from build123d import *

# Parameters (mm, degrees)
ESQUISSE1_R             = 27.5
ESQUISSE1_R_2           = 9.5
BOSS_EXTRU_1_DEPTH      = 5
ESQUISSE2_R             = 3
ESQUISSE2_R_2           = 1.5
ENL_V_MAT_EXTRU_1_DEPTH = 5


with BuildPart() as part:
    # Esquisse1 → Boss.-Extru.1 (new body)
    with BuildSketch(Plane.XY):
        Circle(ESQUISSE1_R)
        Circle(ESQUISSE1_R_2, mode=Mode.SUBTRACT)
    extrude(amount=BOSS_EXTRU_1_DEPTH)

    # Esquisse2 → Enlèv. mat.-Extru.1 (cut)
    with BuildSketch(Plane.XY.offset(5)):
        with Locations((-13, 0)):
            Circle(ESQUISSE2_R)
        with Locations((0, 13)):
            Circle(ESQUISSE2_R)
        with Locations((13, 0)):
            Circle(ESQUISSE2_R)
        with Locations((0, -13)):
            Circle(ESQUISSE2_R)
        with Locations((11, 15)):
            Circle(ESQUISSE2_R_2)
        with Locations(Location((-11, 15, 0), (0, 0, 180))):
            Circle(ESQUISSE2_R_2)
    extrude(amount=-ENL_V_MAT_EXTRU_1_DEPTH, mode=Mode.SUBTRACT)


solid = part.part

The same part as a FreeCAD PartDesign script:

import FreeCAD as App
import Part
import Sketcher

doc = App.newDocument("Part")
body = doc.addObject("PartDesign::Body", "Body")

# Sketch on XY plane
sketch1 = body.newObject("Sketcher::SketchObject", "Sketch")
sketch1.AttachmentSupport = (doc.getObject("XY_Plane"), [""])
sketch1.MapMode = "FlatFace"
sketch1.addGeometry(Part.Circle(App.Vector(0, 0, 0), App.Vector(0, 0, 1), 28), False)
sketch1.addGeometry(Part.Circle(App.Vector(0, 0, 0), App.Vector(0, 0, 1), 10), False)
sketch1.addConstraint(Sketcher.Constraint("Coincident", 0, 3, -1, 1))
sketch1.addConstraint(Sketcher.Constraint("Coincident", 1, 3, -1, 1))
sketch1.addConstraint(Sketcher.Constraint("Diameter", 0, 55.0))
sketch1.addConstraint(Sketcher.Constraint("Diameter", 1, 19.0))
pad1 = body.newObject("PartDesign::Pad", "Pad")
pad1.Profile = sketch1
pad1.Length = 5

# Sketch on XY plane
sketch2 = body.newObject("Sketcher::SketchObject", "Sketch001")
sketch2.AttachmentSupport = (doc.getObject("XY_Plane"), [""])
sketch2.MapMode = "FlatFace"
sketch2.AttachmentOffset = App.Placement(App.Vector(0, 0, 5), App.Rotation())
sketch2.addGeometry(Part.Circle(App.Vector(-13, 0, 0), App.Vector(0, 0, 1), 3), False)
sketch2.addGeometry(Part.Circle(App.Vector(0, 13, 0), App.Vector(0, 0, 1), 3), False)
sketch2.addGeometry(Part.Circle(App.Vector(13, 0, 0), App.Vector(0, 0, 1), 3), False)
sketch2.addGeometry(Part.Circle(App.Vector(0, -13, 0), App.Vector(0, 0, 1), 3), False)
sketch2.addGeometry(Part.Circle(App.Vector(11, 15, 0), App.Vector(0, 0, 1), 1.5), False)
sketch2.addGeometry(Part.Circle(App.Vector(-11, 15, 0), App.Vector(0, 0, 1), 1.5), False)
sketch2.addConstraint(Sketcher.Constraint("Equal", 0, 1))
sketch2.addConstraint(Sketcher.Constraint("Equal", 1, 2))
sketch2.addConstraint(Sketcher.Constraint("Equal", 2, 3))
sketch2.addConstraint(Sketcher.Constraint("Equal", 4, 5))
sketch2.addConstraint(Sketcher.Constraint("Symmetric", 0, 3, 2, 3, -1, 1))
sketch2.addConstraint(Sketcher.Constraint("Symmetric", 1, 3, 3, 3, -1, 1))
sketch2.addConstraint(Sketcher.Constraint("Symmetric", 4, 3, 5, 3, -2))
sketch2.addConstraint(Sketcher.Constraint("PointOnObject", 0, 3, -1))
sketch2.addConstraint(Sketcher.Constraint("PointOnObject", 1, 3, -2))
sketch2.addConstraint(Sketcher.Constraint("Diameter", 0, 6.0))
sketch2.addConstraint(Sketcher.Constraint("Diameter", 4, 3.0))
sketch2.addConstraint(Sketcher.Constraint("DistanceX", 0, 3, -1, 1, 13.0))
sketch2.addConstraint(Sketcher.Constraint("DistanceY", -1, 1, 1, 3, 13.0))
sketch2.addConstraint(Sketcher.Constraint("DistanceX", -1, 1, 4, 3, 11.0))
sketch2.addConstraint(Sketcher.Constraint("DistanceY", -1, 1, 4, 3, 15.0))
pocket1 = body.newObject("PartDesign::Pocket", "Pocket")
pocket1.Profile = sketch2
pocket1.Length = 5

doc.recompute()
